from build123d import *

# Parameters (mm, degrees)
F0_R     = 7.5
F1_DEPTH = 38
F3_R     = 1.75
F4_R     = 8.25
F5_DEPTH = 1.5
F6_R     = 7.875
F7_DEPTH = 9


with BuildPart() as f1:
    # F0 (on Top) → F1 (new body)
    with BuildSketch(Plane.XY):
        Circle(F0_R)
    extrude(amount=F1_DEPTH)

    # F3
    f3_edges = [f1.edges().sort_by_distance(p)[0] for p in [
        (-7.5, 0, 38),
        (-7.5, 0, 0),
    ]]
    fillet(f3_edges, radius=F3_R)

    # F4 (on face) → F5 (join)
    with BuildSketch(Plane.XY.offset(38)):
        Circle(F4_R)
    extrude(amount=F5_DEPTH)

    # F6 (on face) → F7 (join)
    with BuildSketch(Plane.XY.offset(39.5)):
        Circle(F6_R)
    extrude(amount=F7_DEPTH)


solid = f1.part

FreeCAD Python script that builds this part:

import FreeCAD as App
import Part
import Sketcher
from FreeCAD import Vector
Q = App.Units.Quantity


def edges_at(feature, points):
    """Names of the edges that pass closest to the given points."""
    edges = feature.Shape.Edges
    near = lambda p: min(range(len(edges)), key=lambda i: edges[i].distToShape(Part.Vertex(*p))[0])
    return sorted({f"Edge{near(p) + 1}" for p in points})

doc = App.newDocument("Part")
params = doc.addObject("Spreadsheet::Sheet", "Params")
for row, (alias, value) in enumerate([
    ("sketch1_diameter", "15 mm"),
    ("pad1_length", "38 mm"),
    ("fillet_radius", "1.75 mm"),
    ("sketch2_diameter", "16.5 mm"),
    ("pad2_length", "1.5 mm"),
    ("sketch3_diameter", "15.75 mm"),
    ("pad3_length", "9 mm"),
], start=1):
    params.set(f"A{row}", alias)
    params.set(f"B{row}", "=" + value)
    params.setAlias(f"B{row}", alias)

body = doc.addObject("PartDesign::Body", "Body")

sketch1 = body.newObject("Sketcher::SketchObject", "Sketch")
sketch1.AttachmentSupport = (doc.getObject("XY_Plane"), [""])
sketch1.MapMode = "FlatFace"
sketch1.addGeometry(Part.Circle(Vector(0, 0, 0), Vector(0, 0, 1), 7.5), False)
sketch1.addConstraint(Sketcher.Constraint("Coincident", 0, 3, -1, 1))
sketch1.addConstraint(Sketcher.Constraint("Diameter", 0, Q("15 mm")))
sketch1.setExpression("Constraints[1]", "Params.sketch1_diameter")
pad1 = body.newObject("PartDesign::Pad", "Pad")
pad1.Profile = sketch1
pad1.setExpression("Length", "Params.pad1_length")
doc.recompute()

fillet = body.newObject("PartDesign::Fillet", "Fillet")
fillet.Base = (pad1, edges_at(pad1, [(-7.5, 0, 38), (-7.5, 0, 0)]))
fillet.setExpression("Radius", "Params.fillet_radius")

sketch2 = body.newObject("Sketcher::SketchObject", "Sketch001")
sketch2.AttachmentSupport = (doc.getObject("XY_Plane"), [""])
sketch2.MapMode = "FlatFace"
sketch2.AttachmentOffset = App.Placement(Vector(0, 0, 38), App.Rotation())
sketch2.addGeometry(Part.Circle(Vector(0, 0, 0), Vector(0, 0, 1), 8.25), False)
sketch2.addConstraint(Sketcher.Constraint("Coincident", 0, 3, -1, 1))
sketch2.addConstraint(Sketcher.Constraint("Diameter", 0, Q("16.5 mm")))
sketch2.setExpression("Constraints[1]", "Params.sketch2_diameter")
pad2 = body.newObject("PartDesign::Pad", "Pad001")
pad2.Profile = sketch2
pad2.setExpression("Length", "Params.pad2_length")

sketch3 = body.newObject("Sketcher::SketchObject", "Sketch002")
sketch3.AttachmentSupport = (doc.getObject("XY_Plane"), [""])
sketch3.MapMode = "FlatFace"
sketch3.AttachmentOffset = App.Placement(Vector(0, 0, 39.5), App.Rotation())
sketch3.addGeometry(Part.Circle(Vector(0, 0, 0), Vector(0, 0, 1), 7.875), False)
sketch3.addConstraint(Sketcher.Constraint("Coincident", 0, 3, -1, 1))
sketch3.addConstraint(Sketcher.Constraint("Diameter", 0, Q("15.75 mm")))
sketch3.setExpression("Constraints[1]", "Params.sketch3_diameter")
pad3 = body.newObject("PartDesign::Pad", "Pad002")
pad3.Profile = sketch3
pad3.setExpression("Length", "Params.pad3_length")

doc.recompute()
